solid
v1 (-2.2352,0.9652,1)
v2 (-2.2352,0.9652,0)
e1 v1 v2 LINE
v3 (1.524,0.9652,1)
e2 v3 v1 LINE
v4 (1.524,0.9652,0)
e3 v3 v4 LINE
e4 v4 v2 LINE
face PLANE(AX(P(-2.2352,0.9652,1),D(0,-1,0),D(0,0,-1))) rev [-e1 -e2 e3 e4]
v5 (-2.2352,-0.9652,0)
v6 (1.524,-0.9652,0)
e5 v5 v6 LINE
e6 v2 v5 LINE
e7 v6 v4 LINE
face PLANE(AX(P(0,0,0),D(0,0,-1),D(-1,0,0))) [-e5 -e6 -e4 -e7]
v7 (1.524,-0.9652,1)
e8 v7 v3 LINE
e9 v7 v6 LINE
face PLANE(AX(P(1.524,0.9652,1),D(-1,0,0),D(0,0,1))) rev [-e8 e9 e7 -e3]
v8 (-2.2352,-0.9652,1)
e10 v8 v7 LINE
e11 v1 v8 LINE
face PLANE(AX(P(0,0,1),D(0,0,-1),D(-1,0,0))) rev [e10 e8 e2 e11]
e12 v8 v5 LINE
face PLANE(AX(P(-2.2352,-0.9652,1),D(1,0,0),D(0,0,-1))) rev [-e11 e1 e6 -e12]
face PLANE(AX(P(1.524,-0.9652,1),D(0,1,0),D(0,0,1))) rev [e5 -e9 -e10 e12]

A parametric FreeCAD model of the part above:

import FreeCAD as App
import Part
import Sketcher
Q = App.Units.Quantity


def add_polygon(sketch, points):
    """Adds a closed chain of lines whose ends are joined by coincident constraints."""
    first, n = sketch.GeometryCount, len(points)
    for a, b in zip(points, points[1:] + points[:1]):
        sketch.addGeometry(Part.LineSegment(App.Vector(*a, 0), App.Vector(*b, 0)), False)
    for i in range(n):
        sketch.addConstraint(Sketcher.Constraint("Coincident", first + i, 2, first + (i + 1) % n, 1))

doc = App.newDocument("Part")
body = doc.addObject("PartDesign::Body", "Body")

# Sketch on XY plane
sketch1 = doc.addObject("Sketcher::SketchObject", "Sketch")
body.addObject(sketch1)
sketch1.AttachmentSupport = (doc.XY_Plane, [""])
sketch1.MapMode = "FlatFace"
add_polygon(sketch1, [(-2.2, 1), (-2.2, -1), (1.5, -1), (1.5, 1)])  # lines 0-3
sketch1.addConstraint(Sketcher.Constraint("Vertical", 0))
sketch1.addConstraint(Sketcher.Constraint("Horizontal", 1))
sketch1.addConstraint(Sketcher.Constraint("Vertical", 2))
sketch1.addConstraint(Sketcher.Constraint("Horizontal", 3))
sketch1.addConstraint(Sketcher.Constraint("DistanceX", 1, 1, 1, 2, Q("0.148 in")))
sketch1.addConstraint(Sketcher.Constraint("DistanceY", 0, 2, 0, 1, Q("0.076 in")))
sketch1.addConstraint(Sketcher.Constraint("DistanceX", -1, 1, 1, 2, Q("0.06 in")))
sketch1.addConstraint(Sketcher.Constraint("DistanceY", 0, 2, -1, 1, Q("0.038 in")))
pad1 = doc.addObject("PartDesign::Pad", "Pad")
body.addObject(pad1)
pad1.Profile = sketch1
pad1.Length = 1

doc.recompute()
